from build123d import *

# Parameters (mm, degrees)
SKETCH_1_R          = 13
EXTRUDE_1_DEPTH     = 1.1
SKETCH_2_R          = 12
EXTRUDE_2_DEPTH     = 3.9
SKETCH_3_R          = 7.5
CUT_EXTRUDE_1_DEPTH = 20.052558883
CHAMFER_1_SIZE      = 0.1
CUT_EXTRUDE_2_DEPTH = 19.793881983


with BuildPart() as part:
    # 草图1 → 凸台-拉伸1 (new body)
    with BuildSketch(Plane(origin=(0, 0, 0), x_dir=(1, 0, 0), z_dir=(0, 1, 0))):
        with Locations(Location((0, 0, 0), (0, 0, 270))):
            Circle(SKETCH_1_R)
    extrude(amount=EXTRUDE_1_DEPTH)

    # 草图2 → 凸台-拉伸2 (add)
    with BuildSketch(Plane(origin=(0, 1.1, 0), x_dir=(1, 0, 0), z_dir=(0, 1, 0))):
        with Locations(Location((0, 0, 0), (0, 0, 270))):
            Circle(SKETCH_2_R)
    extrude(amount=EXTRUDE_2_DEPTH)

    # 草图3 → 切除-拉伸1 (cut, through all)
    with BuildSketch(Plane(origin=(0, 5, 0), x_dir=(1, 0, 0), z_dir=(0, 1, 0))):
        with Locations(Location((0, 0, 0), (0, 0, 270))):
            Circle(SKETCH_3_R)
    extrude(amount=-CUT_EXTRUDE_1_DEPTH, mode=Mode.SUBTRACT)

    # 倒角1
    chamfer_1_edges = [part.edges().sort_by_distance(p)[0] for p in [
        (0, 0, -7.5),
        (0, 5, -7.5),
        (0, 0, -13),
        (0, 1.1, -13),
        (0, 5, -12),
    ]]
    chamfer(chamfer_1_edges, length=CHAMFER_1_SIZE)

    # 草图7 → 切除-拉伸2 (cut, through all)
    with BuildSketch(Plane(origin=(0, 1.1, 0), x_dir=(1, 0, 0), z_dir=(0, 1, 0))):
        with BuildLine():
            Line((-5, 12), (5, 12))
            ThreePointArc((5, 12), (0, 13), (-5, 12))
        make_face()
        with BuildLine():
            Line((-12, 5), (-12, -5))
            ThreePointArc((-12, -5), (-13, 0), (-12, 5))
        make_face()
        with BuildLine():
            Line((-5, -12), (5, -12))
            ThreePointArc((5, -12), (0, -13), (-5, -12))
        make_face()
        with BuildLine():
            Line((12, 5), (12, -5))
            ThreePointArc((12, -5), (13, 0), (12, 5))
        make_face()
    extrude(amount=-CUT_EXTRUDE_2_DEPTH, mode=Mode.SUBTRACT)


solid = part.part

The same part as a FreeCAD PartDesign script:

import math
import FreeCAD as App
import Part
import Sketcher
from FreeCAD import Vector


def edges_at(feature, points):
    """Names of the edges that pass closest to the given points."""
    edges = feature.Shape.Edges
    near = lambda p: min(range(len(edges)), key=lambda i: edges[i].distToShape(Part.Vertex(*p))[0])
    return sorted({f"Edge{near(p) + 1}" for p in points})

doc = App.newDocument("Part")
params = doc.addObject("Spreadsheet::Sheet", "Params")
for row, (alias, value) in enumerate([
    ("sketch1_diameter", "26 mm"),
    ("pad1_length", "1.1 mm"),
    ("sketch2_diameter", "24 mm"),
    ("pad2_length", "3.9 mm"),
    ("sketch3_diameter", "15 mm"),
    ("chamfer_size", "0.1 mm"),
    ("sketch4_radius", "13 mm"),
    ("sketch4_width", "10 mm"),
], start=1):
    params.set(f"A{row}", alias)
    params.set(f"B{row}", "=" + value)
    params.setAlias(f"B{row}", alias)

body = doc.addObject("PartDesign::Body", "Body")

sketch1 = body.newObject("Sketcher::SketchObject", "Sketch")
sketch1.AttachmentSupport = (doc.getObject("XZ_Plane"), [""])
sketch1.MapMode = "FlatFace"
sketch1.addGeometry(Part.Circle(Vector(0, 0, 0), Vector(0, 0, 1), 13), False)
sketch1.addConstraint([
    Sketcher.Constraint("Coincident", 0, 3, -1, 1),
    Sketcher.Constraint("Diameter", 0, 26.0),
])
sketch1.setExpression("Constraints[1]", "Params.sketch1_diameter")
pad1 = body.newObject("PartDesign::Pad", "Pad")
pad1.Profile = sketch1
pad1.setExpression("Length", "Params.pad1_length")
pad1.Reversed = True

sketch2 = body.newObject("Sketcher::SketchObject", "Sketch001")
sketch2.AttachmentSupport = (doc.getObject("XZ_Plane"), [""])
sketch2.MapMode = "FlatFace"
sketch2.AttachmentOffset = App.Placement(Vector(0, 0, -1.1), App.Rotation())
sketch2.addGeometry(Part.Circle(Vector(0, 0, 0), Vector(0, 0, 1), 12), False)
sketch2.addConstraint([
    Sketcher.Constraint("Coincident", 0, 3, -1, 1),
    Sketcher.Constraint("Diameter", 0, 24.0),
])
sketch2.setExpression("Constraints[1]", "Params.sketch2_diameter")
pad2 = body.newObject("PartDesign::Pad", "Pad001")
pad2.Profile = sketch2
pad2.setExpression("Length", "Params.pad2_length")
pad2.Reversed = True

sketch3 = body.newObject("Sketcher::SketchObject", "Sketch002")
sketch3.AttachmentSupport = (doc.getObject("XZ_Plane"), [""])
sketch3.MapMode = "FlatFace"
sketch3.AttachmentOffset = App.Placement(Vector(0, 0, -5), App.Rotation())
sketch3.addGeometry(Part.Circle(Vector(0, 0, 0), Vector(0, 0, 1), 8), False)
sketch3.addConstraint([
    Sketcher.Constraint("Coincident", 0, 3, -1, 1),
    Sketcher.Constraint("Diameter", 0, 15.0),
])
sketch3.setExpression("Constraints[1]", "Params.sketch3_diameter")
pocket1 = body.newObject("PartDesign::Pocket", "Pocket")
pocket1.Profile = sketch3
pocket1.Type = "ThroughAll"
pocket1.Reversed = True
doc.recompute()

chamfer = body.newObject("PartDesign::Chamfer", "Chamfer")
chamfer.Base = (pocket1, edges_at(pocket1, [
    (0, 0, -7.5),
    (0, 5, -7.5),
    (0, 0, -13),
    (0, 1.1, -13),
    (0, 5, -12),
]))
chamfer.setExpression("Size", "Params.chamfer_size")

sketch4 = body.newObject("Sketcher::SketchObject", "Sketch003")
sketch4.AttachmentSupport = (doc.getObject("XZ_Plane"), [""])
sketch4.MapMode = "FlatFace"
sketch4.AttachmentOffset = App.Placement(Vector(0, 0, -1.1), App.Rotation())
sketch4.addGeometry([
    Part.LineSegment(Vector(-5, -12, 0), Vector(5, -12, 0)),
    Part.ArcOfCircle(Part.Circle(Vector(0, 0, 0), Vector(0, 0, 1), 13), math.radians(-113), math.radians(-67)),
    Part.LineSegment(Vector(-12, 5, 0), Vector(-12, -5, 0)),
    Part.ArcOfCircle(Part.Circle(Vector(0, 0, 0), Vector(0, 0, 1), 13), math.radians(157), math.radians(203)),
    Part.LineSegment(Vector(5, 12, 0), Vector(-5, 12, 0)),
    Part.ArcOfCircle(Part.Circle(Vector(0, 0, 0), Vector(0, 0, 1), 13), math.radians(67), math.radians(113)),
    Part.LineSegment(Vector(12, -5, 0), Vector(12, 5, 0)),
    Part.ArcOfCircle(Part.Circle(Vector(0, 0, 0), Vector(0, 0, 1), 13), math.radians(-23), math.radians(23)),
], False)
sketch4.addConstraint([
    Sketcher.Constraint("Coincident", 0, 1, 1, 1),
    Sketcher.Constraint("Coincident", 1, 2, 0, 2),
    Sketcher.Constraint("Coincident", 2, 1, 3, 1),
    Sketcher.Constraint("Coincident", 3, 2, 2, 2),
    Sketcher.Constraint("Coincident", 4, 1, 5, 1),
    Sketcher.Constraint("Coincident", 5, 2, 4, 2),
    Sketcher.Constraint("Coincident", 6, 1, 7, 1),
    Sketcher.Constraint("Coincident", 7, 2, 6, 2),
    Sketcher.Constraint("Horizontal", 0),
    Sketcher.Constraint("Vertical", 2),
    Sketcher.Constraint("Horizontal", 4),
    Sketcher.Constraint("Vertical", 6),
    Sketcher.Constraint("Coincident", 1, 3, -1, 1),
    Sketcher.Constraint("Coincident", 3, 3, -1, 1),
    Sketcher.Constraint("Coincident", 5, 3, -1, 1),
    Sketcher.Constraint("Coincident", 7, 3, -1, 1),
    Sketcher.Constraint("Equal", 1, 3),
    Sketcher.Constraint("Equal", 3, 5),
    Sketcher.Constraint("Equal", 5, 7),
    Sketcher.Constraint("Horizontal", 3, 2, 6, 1),
    Sketcher.Constraint("Vertical", 1, 2, 4, 1),
    Sketcher.Constraint("Equal", 4, 2),
    Sketcher.Constraint("Radius", 1, 13.0),
    Sketcher.Constraint("DistanceX", 0, 1, 0, 2, 10.0),
])
sketch4.setExpression("Constraints[22]", "Params.sketch4_radius")
sketch4.setExpression("Constraints[23]", "Params.sketch4_width")
pocket2 = body.newObject("PartDesign::Pocket", "Pocket001")
pocket2.Profile = sketch4
pocket2.Type = "ThroughAll"
pocket2.Reversed = True

doc.recompute()
